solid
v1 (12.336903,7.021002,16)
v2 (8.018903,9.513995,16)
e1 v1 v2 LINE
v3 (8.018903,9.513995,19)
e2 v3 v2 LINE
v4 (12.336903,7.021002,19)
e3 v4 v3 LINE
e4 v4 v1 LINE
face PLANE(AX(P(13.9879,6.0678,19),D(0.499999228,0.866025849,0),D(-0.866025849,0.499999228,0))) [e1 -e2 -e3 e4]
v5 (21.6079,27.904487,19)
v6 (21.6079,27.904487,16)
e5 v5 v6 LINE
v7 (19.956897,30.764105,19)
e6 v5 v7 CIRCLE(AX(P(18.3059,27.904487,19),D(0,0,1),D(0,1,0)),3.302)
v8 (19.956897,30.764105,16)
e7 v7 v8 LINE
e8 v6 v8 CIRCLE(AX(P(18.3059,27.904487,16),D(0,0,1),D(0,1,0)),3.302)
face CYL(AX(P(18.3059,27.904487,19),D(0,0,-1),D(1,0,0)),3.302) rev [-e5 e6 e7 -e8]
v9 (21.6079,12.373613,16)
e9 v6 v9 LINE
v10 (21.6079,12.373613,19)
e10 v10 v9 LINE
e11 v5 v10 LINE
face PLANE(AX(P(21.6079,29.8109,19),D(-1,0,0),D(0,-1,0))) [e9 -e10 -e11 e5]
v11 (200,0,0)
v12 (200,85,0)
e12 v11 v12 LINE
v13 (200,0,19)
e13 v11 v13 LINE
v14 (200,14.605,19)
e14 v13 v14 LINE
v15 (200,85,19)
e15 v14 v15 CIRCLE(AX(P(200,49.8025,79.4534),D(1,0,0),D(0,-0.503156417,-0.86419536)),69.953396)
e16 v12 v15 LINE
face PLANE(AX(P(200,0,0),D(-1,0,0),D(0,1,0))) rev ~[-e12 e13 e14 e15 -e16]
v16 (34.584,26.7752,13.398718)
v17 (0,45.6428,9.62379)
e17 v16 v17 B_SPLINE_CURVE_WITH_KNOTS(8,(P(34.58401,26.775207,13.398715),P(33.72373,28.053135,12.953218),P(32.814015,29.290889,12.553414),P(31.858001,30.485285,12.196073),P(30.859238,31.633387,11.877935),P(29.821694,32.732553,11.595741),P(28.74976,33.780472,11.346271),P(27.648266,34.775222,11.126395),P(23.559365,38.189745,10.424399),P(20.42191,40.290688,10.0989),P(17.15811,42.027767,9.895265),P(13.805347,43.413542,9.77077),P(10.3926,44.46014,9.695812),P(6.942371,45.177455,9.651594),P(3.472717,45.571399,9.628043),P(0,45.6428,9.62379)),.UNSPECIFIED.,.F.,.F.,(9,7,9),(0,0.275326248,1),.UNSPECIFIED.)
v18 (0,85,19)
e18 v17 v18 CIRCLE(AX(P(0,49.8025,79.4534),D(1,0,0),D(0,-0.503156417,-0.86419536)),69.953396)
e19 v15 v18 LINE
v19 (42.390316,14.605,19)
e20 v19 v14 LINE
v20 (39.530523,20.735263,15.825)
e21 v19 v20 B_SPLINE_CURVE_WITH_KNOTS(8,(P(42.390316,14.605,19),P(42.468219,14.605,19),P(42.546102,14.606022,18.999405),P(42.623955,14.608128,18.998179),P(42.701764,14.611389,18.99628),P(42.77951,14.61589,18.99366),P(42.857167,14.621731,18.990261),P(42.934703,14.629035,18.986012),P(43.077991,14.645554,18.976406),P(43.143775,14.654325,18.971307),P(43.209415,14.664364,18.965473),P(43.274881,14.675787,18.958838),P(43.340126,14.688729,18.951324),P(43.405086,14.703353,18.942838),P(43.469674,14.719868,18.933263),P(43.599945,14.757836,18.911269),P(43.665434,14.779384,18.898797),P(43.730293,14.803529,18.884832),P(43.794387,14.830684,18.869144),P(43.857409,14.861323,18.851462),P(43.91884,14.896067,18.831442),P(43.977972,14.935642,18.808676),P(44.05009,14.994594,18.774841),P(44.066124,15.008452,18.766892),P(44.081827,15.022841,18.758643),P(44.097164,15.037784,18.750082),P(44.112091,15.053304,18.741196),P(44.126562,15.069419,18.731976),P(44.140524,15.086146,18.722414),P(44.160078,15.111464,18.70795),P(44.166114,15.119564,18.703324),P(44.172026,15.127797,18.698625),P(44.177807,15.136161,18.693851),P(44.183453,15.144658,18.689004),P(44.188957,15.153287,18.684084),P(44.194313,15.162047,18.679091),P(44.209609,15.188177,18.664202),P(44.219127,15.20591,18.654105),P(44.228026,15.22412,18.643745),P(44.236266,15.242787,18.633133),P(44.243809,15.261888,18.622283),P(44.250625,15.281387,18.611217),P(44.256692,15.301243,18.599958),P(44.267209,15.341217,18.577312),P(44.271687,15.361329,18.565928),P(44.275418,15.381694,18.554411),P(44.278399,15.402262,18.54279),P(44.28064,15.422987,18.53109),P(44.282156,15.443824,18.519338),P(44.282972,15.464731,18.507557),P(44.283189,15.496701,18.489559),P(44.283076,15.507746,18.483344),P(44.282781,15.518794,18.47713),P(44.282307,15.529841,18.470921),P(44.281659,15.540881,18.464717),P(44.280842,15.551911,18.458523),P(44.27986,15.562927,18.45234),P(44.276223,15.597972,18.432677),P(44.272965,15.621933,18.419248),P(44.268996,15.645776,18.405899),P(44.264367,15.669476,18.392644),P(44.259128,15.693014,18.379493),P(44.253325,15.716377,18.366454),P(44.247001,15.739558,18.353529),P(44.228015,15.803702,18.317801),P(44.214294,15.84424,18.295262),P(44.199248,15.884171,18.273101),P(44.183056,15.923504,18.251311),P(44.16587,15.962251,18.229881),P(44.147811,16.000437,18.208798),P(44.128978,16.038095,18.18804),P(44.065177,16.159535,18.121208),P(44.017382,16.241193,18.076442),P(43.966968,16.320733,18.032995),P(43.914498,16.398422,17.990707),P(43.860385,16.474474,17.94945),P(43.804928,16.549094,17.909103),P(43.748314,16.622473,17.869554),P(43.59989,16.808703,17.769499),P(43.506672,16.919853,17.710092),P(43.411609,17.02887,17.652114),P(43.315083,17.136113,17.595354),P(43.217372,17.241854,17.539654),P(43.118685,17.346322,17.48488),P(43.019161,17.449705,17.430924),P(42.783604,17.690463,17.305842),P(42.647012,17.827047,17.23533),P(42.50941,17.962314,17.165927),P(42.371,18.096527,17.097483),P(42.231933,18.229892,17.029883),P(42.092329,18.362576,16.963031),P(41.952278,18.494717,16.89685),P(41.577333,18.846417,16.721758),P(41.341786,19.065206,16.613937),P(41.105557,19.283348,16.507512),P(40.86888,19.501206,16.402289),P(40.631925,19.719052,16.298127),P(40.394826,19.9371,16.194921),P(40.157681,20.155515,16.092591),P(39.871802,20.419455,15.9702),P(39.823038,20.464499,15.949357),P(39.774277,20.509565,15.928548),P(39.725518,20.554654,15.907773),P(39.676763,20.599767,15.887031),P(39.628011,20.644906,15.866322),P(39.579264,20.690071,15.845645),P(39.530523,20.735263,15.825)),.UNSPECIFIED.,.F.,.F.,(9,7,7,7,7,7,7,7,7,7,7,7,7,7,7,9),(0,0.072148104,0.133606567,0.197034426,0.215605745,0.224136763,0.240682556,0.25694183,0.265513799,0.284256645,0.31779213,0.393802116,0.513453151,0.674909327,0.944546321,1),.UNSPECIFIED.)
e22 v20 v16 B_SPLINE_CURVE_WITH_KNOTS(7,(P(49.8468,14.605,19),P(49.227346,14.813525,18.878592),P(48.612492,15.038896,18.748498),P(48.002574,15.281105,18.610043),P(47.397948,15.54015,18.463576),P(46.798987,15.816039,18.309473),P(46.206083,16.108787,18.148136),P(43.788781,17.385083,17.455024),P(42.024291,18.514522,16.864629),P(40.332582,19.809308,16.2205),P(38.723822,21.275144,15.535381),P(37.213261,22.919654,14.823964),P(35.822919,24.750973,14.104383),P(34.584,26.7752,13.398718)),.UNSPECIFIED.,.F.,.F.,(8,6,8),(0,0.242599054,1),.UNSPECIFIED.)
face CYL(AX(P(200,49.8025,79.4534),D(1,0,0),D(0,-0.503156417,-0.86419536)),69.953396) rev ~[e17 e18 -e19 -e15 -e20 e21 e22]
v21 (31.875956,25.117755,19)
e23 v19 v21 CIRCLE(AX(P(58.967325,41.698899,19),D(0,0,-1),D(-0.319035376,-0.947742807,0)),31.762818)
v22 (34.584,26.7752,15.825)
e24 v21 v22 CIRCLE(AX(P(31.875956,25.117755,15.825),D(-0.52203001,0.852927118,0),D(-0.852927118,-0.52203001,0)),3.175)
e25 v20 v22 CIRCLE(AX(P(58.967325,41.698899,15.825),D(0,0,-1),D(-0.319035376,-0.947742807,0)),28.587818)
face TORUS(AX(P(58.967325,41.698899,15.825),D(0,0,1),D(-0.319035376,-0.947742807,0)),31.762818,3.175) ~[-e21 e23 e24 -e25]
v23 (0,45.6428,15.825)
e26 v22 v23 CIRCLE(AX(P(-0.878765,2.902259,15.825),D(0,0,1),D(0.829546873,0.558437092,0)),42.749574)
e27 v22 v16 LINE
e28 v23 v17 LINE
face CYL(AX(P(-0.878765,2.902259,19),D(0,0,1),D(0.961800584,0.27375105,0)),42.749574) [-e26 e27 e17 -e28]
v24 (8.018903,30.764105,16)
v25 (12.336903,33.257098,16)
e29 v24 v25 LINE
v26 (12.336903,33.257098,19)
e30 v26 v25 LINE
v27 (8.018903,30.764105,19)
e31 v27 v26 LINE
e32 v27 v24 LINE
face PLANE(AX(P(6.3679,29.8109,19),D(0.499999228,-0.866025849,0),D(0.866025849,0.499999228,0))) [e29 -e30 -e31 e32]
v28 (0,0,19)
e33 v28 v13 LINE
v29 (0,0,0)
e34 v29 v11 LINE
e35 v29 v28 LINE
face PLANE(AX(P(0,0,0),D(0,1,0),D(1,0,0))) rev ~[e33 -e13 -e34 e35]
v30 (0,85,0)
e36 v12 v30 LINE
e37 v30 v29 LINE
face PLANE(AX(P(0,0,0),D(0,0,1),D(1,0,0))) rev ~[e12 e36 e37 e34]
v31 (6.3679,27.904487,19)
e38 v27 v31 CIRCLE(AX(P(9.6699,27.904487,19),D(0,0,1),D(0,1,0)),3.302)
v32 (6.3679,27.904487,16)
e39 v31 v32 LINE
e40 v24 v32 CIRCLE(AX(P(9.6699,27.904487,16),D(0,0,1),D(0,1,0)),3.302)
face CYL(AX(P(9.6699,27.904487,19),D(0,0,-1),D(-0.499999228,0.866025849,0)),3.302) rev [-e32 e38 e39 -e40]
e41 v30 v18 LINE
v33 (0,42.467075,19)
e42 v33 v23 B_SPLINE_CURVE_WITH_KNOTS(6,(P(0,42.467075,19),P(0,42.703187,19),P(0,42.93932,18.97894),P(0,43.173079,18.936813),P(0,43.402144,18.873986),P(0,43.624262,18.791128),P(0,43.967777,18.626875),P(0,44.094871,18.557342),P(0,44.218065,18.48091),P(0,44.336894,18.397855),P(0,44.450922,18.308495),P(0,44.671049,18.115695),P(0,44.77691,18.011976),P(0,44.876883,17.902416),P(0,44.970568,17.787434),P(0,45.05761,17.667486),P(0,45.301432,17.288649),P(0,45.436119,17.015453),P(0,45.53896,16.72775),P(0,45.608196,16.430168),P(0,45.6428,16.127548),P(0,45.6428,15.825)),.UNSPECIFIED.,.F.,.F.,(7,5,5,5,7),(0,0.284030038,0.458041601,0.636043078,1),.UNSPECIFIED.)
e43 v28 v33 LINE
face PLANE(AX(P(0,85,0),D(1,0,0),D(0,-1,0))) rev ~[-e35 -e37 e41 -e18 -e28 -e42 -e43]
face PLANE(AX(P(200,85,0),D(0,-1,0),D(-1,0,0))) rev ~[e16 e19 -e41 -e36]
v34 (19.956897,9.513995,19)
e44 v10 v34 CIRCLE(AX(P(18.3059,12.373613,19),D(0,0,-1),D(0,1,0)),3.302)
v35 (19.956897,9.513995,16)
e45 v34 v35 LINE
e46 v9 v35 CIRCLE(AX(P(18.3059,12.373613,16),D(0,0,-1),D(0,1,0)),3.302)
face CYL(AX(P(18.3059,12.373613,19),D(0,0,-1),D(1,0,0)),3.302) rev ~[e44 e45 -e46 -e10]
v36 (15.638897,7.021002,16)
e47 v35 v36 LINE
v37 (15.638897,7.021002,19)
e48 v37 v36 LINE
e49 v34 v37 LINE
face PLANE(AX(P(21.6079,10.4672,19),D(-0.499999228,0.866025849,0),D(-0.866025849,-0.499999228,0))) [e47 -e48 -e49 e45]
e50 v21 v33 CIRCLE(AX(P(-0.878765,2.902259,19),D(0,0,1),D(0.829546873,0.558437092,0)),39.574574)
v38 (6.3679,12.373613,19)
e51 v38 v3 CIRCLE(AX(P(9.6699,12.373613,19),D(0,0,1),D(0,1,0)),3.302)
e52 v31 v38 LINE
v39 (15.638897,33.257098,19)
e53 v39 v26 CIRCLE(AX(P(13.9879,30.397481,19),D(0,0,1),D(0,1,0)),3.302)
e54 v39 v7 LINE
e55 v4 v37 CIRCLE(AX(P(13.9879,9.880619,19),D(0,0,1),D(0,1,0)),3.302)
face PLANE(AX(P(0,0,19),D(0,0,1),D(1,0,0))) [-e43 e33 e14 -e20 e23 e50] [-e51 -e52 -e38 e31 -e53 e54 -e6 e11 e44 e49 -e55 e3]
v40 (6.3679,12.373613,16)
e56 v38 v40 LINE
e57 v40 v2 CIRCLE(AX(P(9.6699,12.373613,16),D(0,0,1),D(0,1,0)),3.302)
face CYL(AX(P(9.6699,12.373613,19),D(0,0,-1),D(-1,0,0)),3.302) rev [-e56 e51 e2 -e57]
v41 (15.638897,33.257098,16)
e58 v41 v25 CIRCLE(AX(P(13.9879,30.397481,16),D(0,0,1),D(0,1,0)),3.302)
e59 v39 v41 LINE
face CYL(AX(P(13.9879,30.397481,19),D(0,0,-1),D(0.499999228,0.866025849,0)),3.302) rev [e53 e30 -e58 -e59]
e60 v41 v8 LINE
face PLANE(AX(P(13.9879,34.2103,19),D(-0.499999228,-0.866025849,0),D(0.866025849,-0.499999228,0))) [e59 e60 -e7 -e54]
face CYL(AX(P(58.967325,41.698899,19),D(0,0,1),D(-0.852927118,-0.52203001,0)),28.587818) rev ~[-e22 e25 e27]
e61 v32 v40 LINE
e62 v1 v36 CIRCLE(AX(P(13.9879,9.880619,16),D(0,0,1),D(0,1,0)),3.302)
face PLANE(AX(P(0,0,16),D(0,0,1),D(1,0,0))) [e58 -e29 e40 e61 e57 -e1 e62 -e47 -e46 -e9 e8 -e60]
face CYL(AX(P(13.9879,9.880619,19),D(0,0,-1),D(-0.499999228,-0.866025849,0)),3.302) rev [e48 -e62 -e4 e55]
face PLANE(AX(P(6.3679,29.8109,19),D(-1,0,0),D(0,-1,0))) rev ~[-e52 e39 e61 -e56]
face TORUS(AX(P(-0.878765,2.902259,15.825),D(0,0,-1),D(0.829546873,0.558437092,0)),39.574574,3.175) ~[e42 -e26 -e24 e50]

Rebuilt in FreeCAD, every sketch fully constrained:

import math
import FreeCAD as App
import Part
import Sketcher
Q = App.Units.Quantity


def edges_at(feature, points):
    """Names of the edges that pass closest to the given points."""
    edges = feature.Shape.Edges
    near = lambda p: min(range(len(edges)), key=lambda i: edges[i].distToShape(Part.Vertex(*p))[0])
    return sorted({f"Edge{near(p) + 1}" for p in points})

doc = App.newDocument("Part")
body = doc.addObject("PartDesign::Body", "Body")

# Sketch on XY plane
sketch1 = body.newObject("Sketcher::SketchObject", "Sketch")
sketch1.AttachmentSupport = (doc.getObject("XY_Plane"), [""])
sketch1.MapMode = "FlatFace"
sketch1.addGeometry([
    Part.LineSegment(App.Vector(0, 85, 0), App.Vector(0, 0, 0)),
    Part.LineSegment(App.Vector(0, 0, 0), App.Vector(200, 0, 0)),
    Part.LineSegment(App.Vector(200, 0, 0), App.Vector(200, 85, 0)),
    Part.LineSegment(App.Vector(200, 85, 0), App.Vector(0, 85, 0)),
], False)
sketch1.addConstraint([
    Sketcher.Constraint("Coincident", 0, 2, 1, 1),
    Sketcher.Constraint("Coincident", 1, 2, 2, 1),
    Sketcher.Constraint("Coincident", 2, 2, 3, 1),
    Sketcher.Constraint("Coincident", 3, 2, 0, 1),
    Sketcher.Constraint("Vertical", 0),
    Sketcher.Constraint("Horizontal", 1),
    Sketcher.Constraint("Vertical", 2),
    Sketcher.Constraint("Horizontal", 3),
    Sketcher.Constraint("Coincident", 0, 2, -1, 1),
    Sketcher.Constraint("DistanceX", 1, 1, 1, 2, 200.0),
    Sketcher.Constraint("DistanceY", 0, 2, 0, 1, 85.0),
])
pad1 = body.newObject("PartDesign::Pad", "Pad")
pad1.Profile = sketch1
pad1.Length = 19

# Sketch on YZ plane
sketch2 = body.newObject("Sketcher::SketchObject", "Sketch001")
sketch2.AttachmentSupport = (doc.getObject("YZ_Plane"), [""])
sketch2.MapMode = "FlatFace"
sketch2.AttachmentOffset = App.Placement(App.Vector(0, 0, 200), App.Rotation())
sketch2.addGeometry([
    Part.LineSegment(App.Vector(85, 19, 0), App.Vector(15, 19, 0)),
    Part.ArcOfCircle(Part.Circle(App.Vector(50, 79, 0), App.Vector(0, 0, 1), 70), math.radians(-120), math.radians(-60)),
], False)
sketch2.addConstraint([
    Sketcher.Constraint("Coincident", 0, 1, 1, 2),
    Sketcher.Constraint("Coincident", 1, 1, 0, 2),
    Sketcher.Constraint("Horizontal", 0),
    Sketcher.Constraint("DistanceX", -1, 1, 1, 1, 14.605),
    Sketcher.Constraint("DistanceX", -1, 1, 0, 1, 85.0),
    Sketcher.Constraint("DistanceY", -1, 1, 0, 1, 19.0),
    Sketcher.Constraint("Radius", 1, 69.9534),
])
pocket1 = body.newObject("PartDesign::Pocket", "Pocket")
pocket1.Profile = sketch2
pocket1.Type = "ThroughAll"

# Sketch on XY plane
sketch3 = body.newObject("Sketcher::SketchObject", "Sketch002")
sketch3.AttachmentSupport = (doc.getObject("XY_Plane"), [""])
sketch3.MapMode = "FlatFace"
sketch3.AttachmentOffset = App.Placement(App.Vector(0, 0, 19), App.Rotation())
sketch3.addGeometry([
    Part.ArcOfCircle(Part.Circle(App.Vector(59, 42, 0), App.Vector(0, 0, 1), 29), math.radians(-149), math.radians(-109)),
    Part.ArcOfCircle(Part.Circle(App.Vector(-1, 3, 0), App.Vector(0, 0, 1), 43), math.radians(34), math.radians(89)),
    Part.LineSegment(App.Vector(0, 46, 0), App.Vector(0, 15, 0)),
    Part.LineSegment(App.Vector(0, 15, 0), App.Vector(50, 15, 0)),
], False)
sketch3.addConstraint([
    Sketcher.Constraint("Coincident", 0, 1, 1, 1),
    Sketcher.Constraint("Coincident", 1, 2, 2, 1),
    Sketcher.Constraint("Coincident", 2, 2, 3, 1),
    Sketcher.Constraint("Coincident", 3, 2, 0, 2),
    Sketcher.Constraint("Vertical", 2),
    Sketcher.Constraint("Horizontal", 3),
    Sketcher.Constraint("PointOnObject", 1, 2, -2),
    Sketcher.Constraint("Radius", 0, 28.5875),
    Sketcher.Constraint("Radius", 1, 42.7498),
    Sketcher.Constraint("DistanceX", 3, 1, 3, 2, 49.8468),
    Sketcher.Constraint("DistanceY", 2, 2, 2, 1, 31.0378),
    Sketcher.Constraint("DistanceX", -1, 1, 0, 3, 58.967),
    Sketcher.Constraint("DistanceX", 1, 3, -1, 1, 0.879),
    Sketcher.Constraint("DistanceY", -1, 1, 1, 3, 2.902),
])
pad2 = body.newObject("PartDesign::Pad", "Pad001")
pad2.Profile = sketch3
pad2.Length = 12.7
pad2.Reversed = True
doc.recompute()

fillet = body.newObject("PartDesign::Fillet", "Fillet")
fillet.Base = (pad2, edges_at(pad2, [(19.595, 40.43, 19), (41.144, 19.347, 19)]))
fillet.Radius = 3.175

# Sketch on XY plane
sketch4 = body.newObject("Sketcher::SketchObject", "Sketch003")
sketch4.AttachmentSupport = (doc.getObject("XY_Plane"), [""])
sketch4.MapMode = "FlatFace"
sketch4.AttachmentOffset = App.Placement(App.Vector(0, 0, 19), App.Rotation())
sketch4.addGeometry([
    Part.LineSegment(App.Vector(14, 6, 0), App.Vector(22, 10, 0)),  # 0
    Part.LineSegment(App.Vector(22, 10, 0), App.Vector(22, 30, 0)),  # 1
    Part.LineSegment(App.Vector(22, 30, 0), App.Vector(14, 34, 0)),  # 2
    Part.LineSegment(App.Vector(14, 34, 0), App.Vector(6, 30, 0)),  # 3
    Part.LineSegment(App.Vector(6, 30, 0), App.Vector(6, 10, 0)),  # 4
    Part.LineSegment(App.Vector(6, 10, 0), App.Vector(14, 6, 0)),  # 5
], False)
sketch4.addConstraint([
    Sketcher.Constraint("Coincident", 0, 2, 1, 1),
    Sketcher.Constraint("Coincident", 1, 2, 2, 1),
    Sketcher.Constraint("Coincident", 2, 2, 3, 1),
    Sketcher.Constraint("Coincident", 3, 2, 4, 1),
    Sketcher.Constraint("Coincident", 4, 2, 5, 1),
    Sketcher.Constraint("Coincident", 5, 2, 0, 1),
    Sketcher.Constraint("Vertical", 1),
    Sketcher.Constraint("Vertical", 4),
    Sketcher.Constraint("Parallel", 0, 3),
    Sketcher.Constraint("Parallel", 2, 5),
    Sketcher.Constraint("Horizontal", 1, 2, 3, 2),
    Sketcher.Constraint("Horizontal", 0, 2, 4, 2),
    Sketcher.Constraint("Vertical", 2, 2, 5, 2),
    Sketcher.Constraint("Angle", 0, Q("30 deg")),
    Sketcher.Constraint("DistanceX", 3, 2, 1, 2, 15.24),
    Sketcher.Constraint("DistanceY", 5, 2, 2, 2, 28.1425),
    Sketcher.Constraint("DistanceX", -1, 1, 0, 2, 21.608),
    Sketcher.Constraint("DistanceY", -1, 1, 1, 2, 29.811),
])
pocket2 = body.newObject("PartDesign::Pocket", "Pocket001")
pocket2.Profile = sketch4
pocket2.Length = 3
doc.recompute()

fillet2 = body.newObject("PartDesign::Fillet", "Fillet001")
fillet2.Base = (pocket2, edges_at(pocket2, [
    (13.988, 34.21, 17.5),
    (21.608, 29.811, 17.5),
    (6.368, 29.811, 17.5),
    (6.368, 10.467, 17.5),
    (13.988, 6.068, 17.5),
    (21.608, 10.467, 17.5),
]))
fillet2.Radius = 3.302

doc.recompute()
